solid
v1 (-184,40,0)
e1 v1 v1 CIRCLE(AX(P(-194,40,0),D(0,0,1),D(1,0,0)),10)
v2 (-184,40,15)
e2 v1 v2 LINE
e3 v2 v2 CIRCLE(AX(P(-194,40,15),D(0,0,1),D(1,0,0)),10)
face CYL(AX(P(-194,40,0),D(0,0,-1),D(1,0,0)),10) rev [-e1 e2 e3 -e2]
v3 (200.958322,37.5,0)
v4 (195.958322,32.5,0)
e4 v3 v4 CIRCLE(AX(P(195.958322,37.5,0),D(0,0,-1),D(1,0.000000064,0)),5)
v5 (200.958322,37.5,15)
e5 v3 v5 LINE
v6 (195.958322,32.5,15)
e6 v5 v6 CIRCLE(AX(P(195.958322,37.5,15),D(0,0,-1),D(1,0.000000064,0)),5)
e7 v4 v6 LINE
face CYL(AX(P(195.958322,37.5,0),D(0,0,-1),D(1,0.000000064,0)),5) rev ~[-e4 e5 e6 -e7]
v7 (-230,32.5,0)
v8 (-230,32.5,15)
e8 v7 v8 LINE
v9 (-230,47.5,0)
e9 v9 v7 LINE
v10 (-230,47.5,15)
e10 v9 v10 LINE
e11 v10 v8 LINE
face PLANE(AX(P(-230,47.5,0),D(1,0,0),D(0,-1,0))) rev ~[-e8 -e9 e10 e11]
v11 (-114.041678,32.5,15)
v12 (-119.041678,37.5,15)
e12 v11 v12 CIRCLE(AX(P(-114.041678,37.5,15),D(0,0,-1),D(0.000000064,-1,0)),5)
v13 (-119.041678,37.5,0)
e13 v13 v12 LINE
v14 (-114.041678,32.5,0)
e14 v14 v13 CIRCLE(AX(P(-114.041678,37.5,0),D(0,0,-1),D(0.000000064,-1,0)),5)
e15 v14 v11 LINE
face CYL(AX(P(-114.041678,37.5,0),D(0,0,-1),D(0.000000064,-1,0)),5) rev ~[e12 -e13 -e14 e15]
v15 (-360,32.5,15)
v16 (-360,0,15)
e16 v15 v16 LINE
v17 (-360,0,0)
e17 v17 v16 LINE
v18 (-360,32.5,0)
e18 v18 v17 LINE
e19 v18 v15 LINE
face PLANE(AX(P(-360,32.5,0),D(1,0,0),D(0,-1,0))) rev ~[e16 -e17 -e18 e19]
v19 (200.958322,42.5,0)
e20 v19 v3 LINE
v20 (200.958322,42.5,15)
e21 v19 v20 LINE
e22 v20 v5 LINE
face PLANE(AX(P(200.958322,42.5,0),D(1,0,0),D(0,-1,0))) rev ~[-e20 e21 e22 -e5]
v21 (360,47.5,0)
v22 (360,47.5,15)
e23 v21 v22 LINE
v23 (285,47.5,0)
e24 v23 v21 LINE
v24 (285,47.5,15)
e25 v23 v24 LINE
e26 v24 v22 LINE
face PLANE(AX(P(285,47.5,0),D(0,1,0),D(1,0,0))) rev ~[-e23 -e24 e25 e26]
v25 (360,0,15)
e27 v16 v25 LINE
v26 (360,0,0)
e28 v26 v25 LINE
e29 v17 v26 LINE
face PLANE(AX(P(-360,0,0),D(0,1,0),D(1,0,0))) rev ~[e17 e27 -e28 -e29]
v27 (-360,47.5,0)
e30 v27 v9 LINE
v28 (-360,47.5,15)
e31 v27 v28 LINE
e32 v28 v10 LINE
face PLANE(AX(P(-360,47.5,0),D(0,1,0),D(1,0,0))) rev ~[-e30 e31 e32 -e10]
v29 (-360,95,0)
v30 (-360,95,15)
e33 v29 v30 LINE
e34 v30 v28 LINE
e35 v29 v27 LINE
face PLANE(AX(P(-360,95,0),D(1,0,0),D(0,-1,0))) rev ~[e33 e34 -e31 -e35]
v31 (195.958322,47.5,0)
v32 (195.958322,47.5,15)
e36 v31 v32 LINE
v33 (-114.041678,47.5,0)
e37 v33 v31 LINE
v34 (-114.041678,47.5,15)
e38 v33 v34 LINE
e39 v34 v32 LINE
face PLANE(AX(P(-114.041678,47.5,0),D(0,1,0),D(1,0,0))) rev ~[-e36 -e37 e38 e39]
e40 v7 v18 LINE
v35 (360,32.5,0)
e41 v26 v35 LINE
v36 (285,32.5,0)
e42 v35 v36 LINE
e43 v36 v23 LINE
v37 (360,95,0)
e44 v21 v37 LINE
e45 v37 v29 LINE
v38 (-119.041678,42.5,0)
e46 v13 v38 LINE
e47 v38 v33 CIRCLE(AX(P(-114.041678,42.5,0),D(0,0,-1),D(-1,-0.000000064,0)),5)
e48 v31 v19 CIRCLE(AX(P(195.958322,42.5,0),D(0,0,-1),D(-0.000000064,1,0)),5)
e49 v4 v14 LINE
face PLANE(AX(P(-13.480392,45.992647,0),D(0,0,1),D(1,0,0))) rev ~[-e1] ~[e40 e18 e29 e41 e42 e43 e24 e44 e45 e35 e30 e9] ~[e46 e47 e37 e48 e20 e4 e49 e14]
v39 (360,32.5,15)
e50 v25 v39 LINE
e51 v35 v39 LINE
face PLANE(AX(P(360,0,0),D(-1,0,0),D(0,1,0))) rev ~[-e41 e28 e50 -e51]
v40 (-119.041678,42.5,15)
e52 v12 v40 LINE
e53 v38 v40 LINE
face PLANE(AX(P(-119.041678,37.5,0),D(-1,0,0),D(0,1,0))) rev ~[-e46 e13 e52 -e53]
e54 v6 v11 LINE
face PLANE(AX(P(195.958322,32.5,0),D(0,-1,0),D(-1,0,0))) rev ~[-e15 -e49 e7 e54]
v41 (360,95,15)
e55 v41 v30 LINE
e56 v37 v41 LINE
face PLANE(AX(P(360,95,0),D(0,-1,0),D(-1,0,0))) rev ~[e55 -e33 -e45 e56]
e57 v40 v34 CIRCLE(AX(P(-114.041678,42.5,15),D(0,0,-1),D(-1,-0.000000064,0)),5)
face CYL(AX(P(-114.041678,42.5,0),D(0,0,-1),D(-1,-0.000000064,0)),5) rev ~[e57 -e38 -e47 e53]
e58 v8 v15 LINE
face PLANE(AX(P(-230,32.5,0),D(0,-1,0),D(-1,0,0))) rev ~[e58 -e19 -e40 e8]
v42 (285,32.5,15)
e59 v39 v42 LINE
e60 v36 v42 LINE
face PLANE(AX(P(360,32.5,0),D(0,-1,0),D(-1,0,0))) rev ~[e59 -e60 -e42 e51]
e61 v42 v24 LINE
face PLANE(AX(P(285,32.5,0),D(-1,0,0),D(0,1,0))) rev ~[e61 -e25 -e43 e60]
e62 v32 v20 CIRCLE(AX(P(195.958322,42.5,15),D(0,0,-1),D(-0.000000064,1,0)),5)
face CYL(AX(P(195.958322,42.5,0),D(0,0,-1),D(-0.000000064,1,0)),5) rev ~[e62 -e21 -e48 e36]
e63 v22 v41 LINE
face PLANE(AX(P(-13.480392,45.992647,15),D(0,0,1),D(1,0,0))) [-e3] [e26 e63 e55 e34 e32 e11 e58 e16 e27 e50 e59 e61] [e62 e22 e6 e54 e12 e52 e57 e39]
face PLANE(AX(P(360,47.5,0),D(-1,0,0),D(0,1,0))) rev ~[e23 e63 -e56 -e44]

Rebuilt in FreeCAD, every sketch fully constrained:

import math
import FreeCAD as App
import Part
import Sketcher
Q = App.Units.Quantity


def add_polygon(sketch, points):
    """Adds a closed chain of lines whose ends are joined by coincident constraints."""
    first, n = sketch.GeometryCount, len(points)
    for a, b in zip(points, points[1:] + points[:1]):
        sketch.addGeometry(Part.LineSegment(App.Vector(*a, 0), App.Vector(*b, 0)), False)
    for i in range(n):
        sketch.addConstraint(Sketcher.Constraint("Coincident", first + i, 2, first + (i + 1) % n, 1))

doc = App.newDocument("Part")
params = doc.addObject("Spreadsheet::Sheet", "Params")
for row, (alias, value) in enumerate([
    ("sketch1_diameter", "20 mm"),
    ("sketch1_radius", "5 mm"),
    ("sketch1_width", "720 mm"),
    ("sketch1_width2", "75 mm"),
    ("sketch1_width3", "130 mm"),
    ("pad1_length", "15 mm"),
], start=1):
    params.set(f"A{row}", alias)
    params.set(f"B{row}", "=" + value)
    params.setAlias(f"B{row}", alias)

body = doc.addObject("PartDesign::Body", "Body")

# Sketch on XY plane
sketch1 = body.newObject("Sketcher::SketchObject", "Sketch")
sketch1.AttachmentSupport = (doc.getObject("XY_Plane"), [""])
sketch1.MapMode = "FlatFace"
add_polygon(sketch1, [(-360, 32.5), (-360, 0), (360, 0), (360, 32.5), (285, 32.5), (285, 47.5), (360, 47.5), (360, 95), (-360, 95), (-360, 47.5), (-230, 47.5), (-230, 32.5)])  # lines 0-11
sketch1.addGeometry(Part.Circle(App.Vector(-194, 40, 0), App.Vector(0, 0, 1), 10), False)  # 12
sketch1.addGeometry(Part.LineSegment(App.Vector(-119, 37.5, 0), App.Vector(-119, 42.5, 0)), False)  # 13
sketch1.addGeometry(Part.ArcOfCircle(Part.Circle(App.Vector(-114, 42.5, 0), App.Vector(0, 0, 1), 5), math.radians(90), math.radians(180)), False)  # 14
sketch1.addGeometry(Part.LineSegment(App.Vector(-114, 47.5, 0), App.Vector(196, 47.5, 0)), False)  # 15
sketch1.addGeometry(Part.ArcOfCircle(Part.Circle(App.Vector(196, 42.5, 0), App.Vector(0, 0, 1), 5), math.radians(0), math.radians(90)), False)  # 16
sketch1.addGeometry(Part.LineSegment(App.Vector(201, 42.5, 0), App.Vector(201, 37.5, 0)), False)  # 17
sketch1.addGeometry(Part.ArcOfCircle(Part.Circle(App.Vector(196, 37.5, 0), App.Vector(0, 0, 1), 5), math.radians(-90), math.radians(0)), False)  # 18
sketch1.addGeometry(Part.LineSegment(App.Vector(196, 32.5, 0), App.Vector(-114, 32.5, 0)), False)  # 19
sketch1.addGeometry(Part.ArcOfCircle(Part.Circle(App.Vector(-114, 37.5, 0), App.Vector(0, 0, 1), 5), math.radians(180), math.radians(270)), False)  # 20
sketch1.addConstraint(Sketcher.Constraint("Tangent", 13, 2, 14, 2))
sketch1.addConstraint(Sketcher.Constraint("Tangent", 14, 1, 15, 1))
sketch1.addConstraint(Sketcher.Constraint("Tangent", 15, 2, 16, 2))
sketch1.addConstraint(Sketcher.Constraint("Tangent", 16, 1, 17, 1))
sketch1.addConstraint(Sketcher.Constraint("Tangent", 17, 2, 18, 2))
sketch1.addConstraint(Sketcher.Constraint("Tangent", 18, 1, 19, 1))
sketch1.addConstraint(Sketcher.Constraint("Tangent", 19, 2, 20, 2))
sketch1.addConstraint(Sketcher.Constraint("Tangent", 20, 1, 13, 1))
sketch1.addConstraint(Sketcher.Constraint("Vertical", 0))
sketch1.addConstraint(Sketcher.Constraint("Horizontal", 1))
sketch1.addConstraint(Sketcher.Constraint("Vertical", 2))
sketch1.addConstraint(Sketcher.Constraint("Horizontal", 3))
sketch1.addConstraint(Sketcher.Constraint("Vertical", 4))
sketch1.addConstraint(Sketcher.Constraint("Horizontal", 5))
sketch1.addConstraint(Sketcher.Constraint("Vertical", 6))
sketch1.addConstraint(Sketcher.Constraint("Horizontal", 7))
sketch1.addConstraint(Sketcher.Constraint("Vertical", 8))
sketch1.addConstraint(Sketcher.Constraint("Horizontal", 9))
sketch1.addConstraint(Sketcher.Constraint("Vertical", 10))
sketch1.addConstraint(Sketcher.Constraint("Horizontal", 11))
sketch1.addConstraint(Sketcher.Constraint("Vertical", 13))
sketch1.addConstraint(Sketcher.Constraint("Horizontal", 15))
sketch1.addConstraint(Sketcher.Constraint("Vertical", 17))
sketch1.addConstraint(Sketcher.Constraint("Horizontal", 19))
sketch1.addConstraint(Sketcher.Constraint("Equal", 14, 16))
sketch1.addConstraint(Sketcher.Constraint("Equal", 16, 18))
sketch1.addConstraint(Sketcher.Constraint("Equal", 18, 20))
sketch1.addConstraint(Sketcher.Constraint("Symmetric", 0, 2, 1, 2, -1, 1))
sketch1.addConstraint(Sketcher.Constraint("Symmetric", 5, 2, 8, 2, -2))
sketch1.addConstraint(Sketcher.Constraint("Horizontal", 3, 2, 10, 2))
sketch1.addConstraint(Sketcher.Constraint("Horizontal", 9, 2, 14, 1))
sketch1.addConstraint(Sketcher.Constraint("Horizontal", 11, 2, 18, 1))
sketch1.addConstraint(Sketcher.Constraint("Vertical", 2, 2, 5, 2))
sketch1.addConstraint(Sketcher.Constraint("Diameter", 12, Q("20 mm")))
sketch1.addConstraint(Sketcher.Constraint("Radius", 14, Q("5 mm")))
sketch1.addConstraint(Sketcher.Constraint("DistanceX", 1, 1, 1, 2, Q("720 mm")))
sketch1.addConstraint(Sketcher.Constraint("DistanceX", 3, 2, 3, 1, Q("75 mm")))
sketch1.addConstraint(Sketcher.Constraint("DistanceX", 9, 1, 9, 2, Q("130 mm")))
sketch1.addConstraint(Sketcher.Constraint("DistanceX", 15, 1, 15, 2, Q("310 mm")))
sketch1.addConstraint(Sketcher.Constraint("DistanceY", 4, 1, 4, 2, Q("15 mm")))
sketch1.addConstraint(Sketcher.Constraint("DistanceY", 0, 2, 0, 1, Q("32.5 mm")))
sketch1.addConstraint(Sketcher.Constraint("DistanceY", 6, 1, 6, 2, Q("47.5 mm")))
sketch1.addConstraint(Sketcher.Constraint("DistanceX", 12, 3, -1, 1, Q("194 mm")))
sketch1.addConstraint(Sketcher.Constraint("DistanceY", -1, 1, 12, 3, Q("40 mm")))
sketch1.addConstraint(Sketcher.Constraint("DistanceX", 14, 3, -1, 1, Q("114.041678 mm")))
sketch1.setExpression("Constraints[45]", "Params.sketch1_diameter")
sketch1.setExpression("Constraints[46]", "Params.sketch1_radius")
sketch1.setExpression("Constraints[47]", "Params.sketch1_width")
sketch1.setExpression("Constraints[48]", "Params.sketch1_width2")
sketch1.setExpression("Constraints[49]", "Params.sketch1_width3")
pad1 = body.newObject("PartDesign::Pad", "Pad")
pad1.Profile = sketch1
pad1.setExpression("Length", "Params.pad1_length")

doc.recompute()
